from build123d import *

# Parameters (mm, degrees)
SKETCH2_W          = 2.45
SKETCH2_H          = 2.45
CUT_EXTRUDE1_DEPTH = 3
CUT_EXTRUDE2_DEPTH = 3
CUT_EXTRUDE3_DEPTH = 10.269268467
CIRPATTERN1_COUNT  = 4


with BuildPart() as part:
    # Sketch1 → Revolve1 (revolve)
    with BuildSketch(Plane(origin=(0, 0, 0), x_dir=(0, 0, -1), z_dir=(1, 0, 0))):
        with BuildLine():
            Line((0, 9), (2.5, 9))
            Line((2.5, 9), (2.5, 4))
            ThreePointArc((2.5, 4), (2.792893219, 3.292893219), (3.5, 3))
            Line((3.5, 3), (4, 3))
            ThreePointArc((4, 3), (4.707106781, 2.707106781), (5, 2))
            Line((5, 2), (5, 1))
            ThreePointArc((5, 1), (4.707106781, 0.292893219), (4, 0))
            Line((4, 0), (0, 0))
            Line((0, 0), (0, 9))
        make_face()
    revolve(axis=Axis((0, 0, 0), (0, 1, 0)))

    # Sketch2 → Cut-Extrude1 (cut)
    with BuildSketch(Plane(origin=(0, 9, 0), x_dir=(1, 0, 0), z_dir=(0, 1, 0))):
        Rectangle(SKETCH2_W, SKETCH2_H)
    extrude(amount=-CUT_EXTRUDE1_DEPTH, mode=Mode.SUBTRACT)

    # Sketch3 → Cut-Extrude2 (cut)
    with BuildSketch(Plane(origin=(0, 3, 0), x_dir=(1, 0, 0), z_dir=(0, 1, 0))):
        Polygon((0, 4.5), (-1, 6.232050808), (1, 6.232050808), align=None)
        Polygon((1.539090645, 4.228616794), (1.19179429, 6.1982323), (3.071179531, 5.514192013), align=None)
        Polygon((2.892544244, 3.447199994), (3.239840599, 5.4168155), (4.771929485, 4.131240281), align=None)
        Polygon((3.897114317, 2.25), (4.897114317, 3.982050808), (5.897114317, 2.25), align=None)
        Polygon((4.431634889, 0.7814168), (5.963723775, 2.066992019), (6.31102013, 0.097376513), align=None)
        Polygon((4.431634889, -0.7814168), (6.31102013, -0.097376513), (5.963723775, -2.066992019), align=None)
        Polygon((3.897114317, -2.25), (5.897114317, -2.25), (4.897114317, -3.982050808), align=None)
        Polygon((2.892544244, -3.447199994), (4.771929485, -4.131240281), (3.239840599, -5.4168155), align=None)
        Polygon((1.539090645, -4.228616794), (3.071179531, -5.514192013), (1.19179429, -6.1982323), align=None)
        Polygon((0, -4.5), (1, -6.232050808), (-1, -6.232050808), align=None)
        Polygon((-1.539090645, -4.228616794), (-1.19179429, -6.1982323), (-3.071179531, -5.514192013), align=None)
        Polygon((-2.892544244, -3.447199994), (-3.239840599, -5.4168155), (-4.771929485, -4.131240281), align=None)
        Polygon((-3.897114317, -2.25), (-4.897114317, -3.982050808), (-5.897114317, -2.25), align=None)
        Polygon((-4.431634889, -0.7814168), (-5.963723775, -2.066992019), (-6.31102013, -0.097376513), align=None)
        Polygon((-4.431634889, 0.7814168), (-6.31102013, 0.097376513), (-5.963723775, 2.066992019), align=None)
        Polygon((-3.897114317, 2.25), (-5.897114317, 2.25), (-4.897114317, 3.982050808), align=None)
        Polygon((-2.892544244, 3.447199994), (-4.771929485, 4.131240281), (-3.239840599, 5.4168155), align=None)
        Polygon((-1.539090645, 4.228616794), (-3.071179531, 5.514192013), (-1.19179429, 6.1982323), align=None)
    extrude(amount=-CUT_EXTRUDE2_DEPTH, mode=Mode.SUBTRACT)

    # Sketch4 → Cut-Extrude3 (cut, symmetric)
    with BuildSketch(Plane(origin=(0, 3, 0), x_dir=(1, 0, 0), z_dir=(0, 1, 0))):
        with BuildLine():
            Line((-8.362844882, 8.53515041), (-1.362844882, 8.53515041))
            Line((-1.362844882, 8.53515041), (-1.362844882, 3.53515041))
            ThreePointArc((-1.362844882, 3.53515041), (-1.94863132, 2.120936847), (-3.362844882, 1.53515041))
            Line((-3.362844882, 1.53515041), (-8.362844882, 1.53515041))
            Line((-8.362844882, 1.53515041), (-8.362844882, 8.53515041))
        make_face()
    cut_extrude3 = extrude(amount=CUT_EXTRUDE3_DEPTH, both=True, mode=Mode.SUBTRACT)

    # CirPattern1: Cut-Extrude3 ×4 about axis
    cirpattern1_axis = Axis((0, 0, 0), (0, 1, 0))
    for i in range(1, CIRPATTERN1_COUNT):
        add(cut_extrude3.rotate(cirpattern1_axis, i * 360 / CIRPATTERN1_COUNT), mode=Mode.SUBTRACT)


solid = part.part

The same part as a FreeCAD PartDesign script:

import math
import FreeCAD as App
import Part
import Sketcher
Q = App.Units.Quantity


def add_polygon(sketch, points):
    """Adds a closed chain of lines whose ends are joined by coincident constraints."""
    first, n = sketch.GeometryCount, len(points)
    for a, b in zip(points, points[1:] + points[:1]):
        sketch.addGeometry(Part.LineSegment(App.Vector(*a, 0), App.Vector(*b, 0)), False)
    for i in range(n):
        sketch.addConstraint(Sketcher.Constraint("Coincident", first + i, 2, first + (i + 1) % n, 1))

doc = App.newDocument("Part")
body = doc.addObject("PartDesign::Body", "Body")

sketch1 = body.newObject("Sketcher::SketchObject", "Sketch")
sketch1.AttachmentSupport = (doc.getObject("YZ_Plane"), [""])
sketch1.MapMode = "FlatFace"
sketch1.addGeometry([
    Part.LineSegment(App.Vector(9, -2.5, 0), App.Vector(9, 0, 0)),
    Part.LineSegment(App.Vector(9, 0, 0), App.Vector(0, 0, 0)),
    Part.LineSegment(App.Vector(0, 0, 0), App.Vector(0, -4, 0)),
    Part.ArcOfCircle(Part.Circle(App.Vector(1, -4, 0), App.Vector(0, 0, 1), 1), math.radians(-180), math.radians(-90)),
    Part.LineSegment(App.Vector(1, -5, 0), App.Vector(2, -5, 0)),
    Part.ArcOfCircle(Part.Circle(App.Vector(2, -4, 0), App.Vector(0, 0, 1), 1), math.radians(-90), math.radians(0)),
    Part.LineSegment(App.Vector(3, -4, 0), App.Vector(3, -3.5, 0)),
    Part.ArcOfCircle(Part.Circle(App.Vector(4, -3.5, 0), App.Vector(0, 0, 1), 1), math.radians(90), math.radians(180)),
    Part.LineSegment(App.Vector(4, -2.5, 0), App.Vector(9, -2.5, 0)),
], False)
sketch1.addConstraint([
    Sketcher.Constraint("Coincident", 0, 2, 1, 1),
    Sketcher.Constraint("Coincident", 1, 2, 2, 1),
    Sketcher.Constraint("Tangent", 2, 2, 3, 1),
    Sketcher.Constraint("Tangent", 3, 2, 4, 1),
    Sketcher.Constraint("Tangent", 4, 2, 5, 1),
    Sketcher.Constraint("Tangent", 5, 2, 6, 1),
    Sketcher.Constraint("Tangent", 6, 2, 7, 2),
    Sketcher.Constraint("Tangent", 7, 1, 8, 1),
    Sketcher.Constraint("Coincident", 8, 2, 0, 1),
    Sketcher.Constraint("Vertical", 0),
    Sketcher.Constraint("Horizontal", 1),
    Sketcher.Constraint("Vertical", 2),
    Sketcher.Constraint("Horizontal", 4),
    Sketcher.Constraint("Vertical", 6),
    Sketcher.Constraint("Horizontal", 8),
    Sketcher.Constraint("Coincident", 1, 2, -1, 1),
    Sketcher.Constraint("Equal", 3, 5),
    Sketcher.Constraint("Equal", 5, 7),
    Sketcher.Constraint("Radius", 3, 1.0),
    Sketcher.Constraint("DistanceX", 1, 2, 1, 1, 9.0),
    Sketcher.Constraint("DistanceX", 4, 1, 4, 2, 1.0),
    Sketcher.Constraint("DistanceY", 2, 2, 2, 1, 4.0),
    Sketcher.Constraint("DistanceY", 0, 1, 0, 2, 2.5),
])
revolution = body.newObject("PartDesign::Revolution", "Revolution")
revolution.Profile = sketch1
revolution.ReferenceAxis = (sketch1, ["H_Axis"])
revolution.Angle = 360

sketch2 = body.newObject("Sketcher::SketchObject", "Sketch001")
sketch2.AttachmentSupport = (doc.getObject("XZ_Plane"), [""])
sketch2.MapMode = "FlatFace"
sketch2.AttachmentOffset = App.Placement(App.Vector(0, 0, -9), App.Rotation())
add_polygon(sketch2, [(-1.2, -1.2), (-1.2, 1.2), (1.2, 1.2), (1.2, -1.2)])
sketch2.addConstraint([
    Sketcher.Constraint("Vertical", 0),
    Sketcher.Constraint("Horizontal", 1),
    Sketcher.Constraint("Vertical", 2),
    Sketcher.Constraint("Horizontal", 3),
    Sketcher.Constraint("Symmetric", 0, 2, 2, 2, -1, 1),
    Sketcher.Constraint("Equal", 3, 0),
    Sketcher.Constraint("DistanceX", 1, 1, 1, 2, 2.45),
])
pocket1 = body.newObject("PartDesign::Pocket", "Pocket")
pocket1.Profile = sketch2
pocket1.Length = 3
pocket1.Reversed = True

sketch3 = body.newObject("Sketcher::SketchObject", "Sketch002")
sketch3.AttachmentSupport = (doc.getObject("XZ_Plane"), [""])
sketch3.MapMode = "FlatFace"
sketch3.AttachmentOffset = App.Placement(App.Vector(0, 0, -3), App.Rotation())
add_polygon(sketch3, [(-1, -6.2), (0, -4.5), (1, -6.2)])
add_polygon(sketch3, [(1.2, -6.2), (1.5, -4.2), (3.1, -5.5)])
add_polygon(sketch3, [(3.2, -5.4), (2.9, -3.4), (4.8, -4.1)])
add_polygon(sketch3, [(4.9, -4), (3.9, -2.2), (5.9, -2.2)])
add_polygon(sketch3, [(6, -2.1), (4.4, -0.8), (6.3, -0.1)])
add_polygon(sketch3, [(6.3, 0.1), (4.4, 0.8), (6, 2.1)])
add_polygon(sketch3, [(5.9, 2.2), (3.9, 2.2), (4.9, 4)])
add_polygon(sketch3, [(4.8, 4.1), (2.9, 3.4), (3.2, 5.4)])
add_polygon(sketch3, [(3.1, 5.5), (1.5, 4.2), (1.2, 6.2)])
add_polygon(sketch3, [(1, 6.2), (0, 4.5), (-1, 6.2)])
add_polygon(sketch3, [(-1.2, 6.2), (-1.5, 4.2), (-3.1, 5.5)])
add_polygon(sketch3, [(-3.2, 5.4), (-2.9, 3.4), (-4.8, 4.1)])
add_polygon(sketch3, [(-4.9, 4), (-3.9, 2.2), (-5.9, 2.2)])
add_polygon(sketch3, [(-6, 2.1), (-4.4, 0.8), (-6.3, 0.1)])
add_polygon(sketch3, [(-6.3, -0.1), (-4.4, -0.8), (-6, -2.1)])
add_polygon(sketch3, [(-5.9, -2.2), (-3.9, -2.2), (-4.9, -4)])
add_polygon(sketch3, [(-4.8, -4.1), (-2.9, -3.4), (-3.2, -5.4)])
add_polygon(sketch3, [(-3.1, -5.5), (-1.5, -4.2), (-1.2, -6.2)])
sketch3.addConstraint([
    Sketcher.Constraint("Horizontal", 2),
    Sketcher.Constraint("Horizontal", 10),
    Sketcher.Constraint("Horizontal", 18),
    Sketcher.Constraint("Horizontal", 29),
    Sketcher.Constraint("Horizontal", 37),
    Sketcher.Constraint("Horizontal", 45),
    Sketcher.Constraint("Symmetric", 0, 2, 27, 2, -1, 1),
    Sketcher.Constraint("Symmetric", 1, 2, 28, 2, -1, 1),
    Sketcher.Constraint("Symmetric", 3, 2, 30, 2, -1, 1),
    Sketcher.Constraint("Symmetric", 4, 2, 31, 2, -1, 1),
    Sketcher.Constraint("Symmetric", 5, 2, 32, 2, -1, 1),
    Sketcher.Constraint("Symmetric", 6, 2, 33, 2, -1, 1),
    Sketcher.Constraint("Symmetric", 7, 2, 34, 2, -1, 1),
    Sketcher.Constraint("Symmetric", 8, 2, 35, 2, -1, 1),
    Sketcher.Constraint("Symmetric", 9, 2, 36, 2, -1, 1),
    Sketcher.Constraint("Symmetric", 11, 2, 38, 2, -1, 1),
    Sketcher.Constraint("Symmetric", 12, 2, 39, 2, -1, 1),
    Sketcher.Constraint("Symmetric", 13, 2, 40, 2, -1, 1),
    Sketcher.Constraint("Symmetric", 14, 2, 41, 2, -1, 1),
    Sketcher.Constraint("Symmetric", 15, 2, 42, 2, -1, 1),
    Sketcher.Constraint("Symmetric", 16, 2, 43, 2, -1, 1),
    Sketcher.Constraint("Symmetric", 17, 2, 44, 2, -1, 1),
    Sketcher.Constraint("Symmetric", 18, 2, 45, 2, -1, 1),
    Sketcher.Constraint("Symmetric", 19, 2, 46, 2, -1, 1),
    Sketcher.Constraint("Symmetric", 21, 2, 48, 2, -1, 1),
    Sketcher.Constraint("Symmetric", 22, 2, 49, 2, -1, 1),
    Sketcher.Constraint("Symmetric", 23, 2, 50, 2, -1, 1),
    Sketcher.Constraint("Symmetric", 24, 2, 51, 2, -1, 1),
    Sketcher.Constraint("Symmetric", 25, 2, 52, 2, -1, 1),
    Sketcher.Constraint("Symmetric", 26, 2, 53, 2, -1, 1),
    Sketcher.Constraint("Symmetric", 24, 2, 30, 2, -2),
    Sketcher.Constraint("Symmetric", 26, 2, 31, 2, -2),
    Sketcher.Constraint("Symmetric", 25, 2, 32, 2, -2),
    Sketcher.Constraint("Symmetric", 21, 2, 33, 2, -2),
    Sketcher.Constraint("Symmetric", 23, 2, 34, 2, -2),
    Sketcher.Constraint("Symmetric", 22, 2, 35, 2, -2),
    Sketcher.Constraint("Symmetric", 18, 2, 36, 2, -2),
    Sketcher.Constraint("Symmetric", 19, 2, 38, 2, -2),
    Sketcher.Constraint("Symmetric", 15, 2, 39, 2, -2),
    Sketcher.Constraint("Symmetric", 17, 2, 40, 2, -2),
    Sketcher.Constraint("Symmetric", 16, 2, 41, 2, -2),
    Sketcher.Constraint("PointOnObject", 0, 2, -2),
    Sketcher.Constraint("Parallel", 1, 9),
    Sketcher.Constraint("Parallel", 0, 11),
    Sketcher.Constraint("Parallel", 4, 12),
    Sketcher.Constraint("Parallel", 5, 13),
    Sketcher.Constraint("Parallel", 3, 14),
    Sketcher.Constraint("Parallel", 7, 15),
    Sketcher.Constraint("Parallel", 8, 16),
    Sketcher.Constraint("Parallel", 6, 17),
    Sketcher.Constraint("Parallel", 11, 19),
    Sketcher.Constraint("Parallel", 9, 20),
    Sketcher.Constraint("Parallel", 19, 27),
    Sketcher.Constraint("Parallel", 27, 38),
    Sketcher.Constraint("Parallel", 36, 47),
    Sketcher.Constraint("Equal", 2, 10),
    Sketcher.Constraint("Equal", 1, 3),
    Sketcher.Constraint("Equal", 3, 4),
    Sketcher.Constraint("Equal", 4, 5),
    Sketcher.Constraint("Equal", 5, 6),
    Sketcher.Constraint("Equal", 11, 12),
    Sketcher.Constraint("DistanceX", 2, 2, 2, 1, 2.0),
    Sketcher.Constraint("Angle", 0, Q("60 deg")),
    Sketcher.Constraint("Angle", 3, Q("80 deg")),
    Sketcher.Constraint("DistanceY", 0, 2, -1, 1, 4.5),
    Sketcher.Constraint("DistanceY", 9, 2, -1, 1, 2.25),
    Sketcher.Constraint("DistanceY", 6, 2, -1, 1, 3.4472),
    Sketcher.Constraint("DistanceY", 8, 2, 3, 2, 1.188199),
    Sketcher.Constraint("DistanceX", -1, 1, 3, 2, 1.539091),
    Sketcher.Constraint("DistanceX", -1, 1, 7, 2, 4.771929),
    Sketcher.Constraint("DistanceX", -1, 1, 13, 2, 6.31102),
    Sketcher.Constraint("DistanceX", 6, 2, 9, 2, 1.00457),
    Sketcher.Constraint("DistanceY", 11, 2, 14, 2, 1.915059),
])
pocket2 = body.newObject("PartDesign::Pocket", "Pocket001")
pocket2.Profile = sketch3
pocket2.Length = 3
pocket2.Reversed = True

sketch4 = body.newObject("Sketcher::SketchObject", "Sketch003")
sketch4.AttachmentSupport = (doc.getObject("XZ_Plane"), [""])
sketch4.MapMode = "FlatFace"
sketch4.AttachmentOffset = App.Placement(App.Vector(0, 0, -3), App.Rotation())
sketch4.addGeometry([
    Part.LineSegment(App.Vector(-1.4, -8.5, 0), App.Vector(-8.4, -8.5, 0)),
    Part.LineSegment(App.Vector(-8.4, -8.5, 0), App.Vector(-8.4, -1.5, 0)),
    Part.LineSegment(App.Vector(-8.4, -1.5, 0), App.Vector(-3.4, -1.5, 0)),
    Part.ArcOfCircle(Part.Circle(App.Vector(-3.4, -3.5, 0), App.Vector(0, 0, 1), 2), math.radians(0), math.radians(90)),
    Part.LineSegment(App.Vector(-1.4, -3.5, 0), App.Vector(-1.4, -8.5, 0)),
], False)
sketch4.addConstraint([
    Sketcher.Constraint("Coincident", 0, 2, 1, 1),
    Sketcher.Constraint("Coincident", 1, 2, 2, 1),
    Sketcher.Constraint("Tangent", 2, 2, 3, 2),
    Sketcher.Constraint("Tangent", 3, 1, 4, 1),
    Sketcher.Constraint("Coincident", 4, 2, 0, 1),
    Sketcher.Constraint("Horizontal", 0),
    Sketcher.Constraint("Vertical", 1),
    Sketcher.Constraint("Horizontal", 2),
    Sketcher.Constraint("Vertical", 4),
    Sketcher.Constraint("Equal", 0, 1),
    Sketcher.Constraint("Radius", 3, 2.0),
    Sketcher.Constraint("DistanceX", 0, 2, 0, 1, 7.0),
    Sketcher.Constraint("DistanceY", 3, 3, -1, 1, 3.53515),
    Sketcher.Constraint("DistanceX", 3, 3, -1, 1, 3.362845),
])
pocket3 = body.newObject("PartDesign::Pocket", "Pocket002")
pocket3.Profile = sketch4
pocket3.Length = 20.538537
pocket3.Midplane = True
doc.recompute()

polarpattern = body.newObject("PartDesign::PolarPattern", "PolarPattern")
polarpattern.Originals = [pocket3]
polarpattern.Axis = (doc.getObject("Y_Axis"), [""])
polarpattern.Angle = 360
polarpattern.Occurrences = 4
body.Tip = polarpattern

doc.recompute()
